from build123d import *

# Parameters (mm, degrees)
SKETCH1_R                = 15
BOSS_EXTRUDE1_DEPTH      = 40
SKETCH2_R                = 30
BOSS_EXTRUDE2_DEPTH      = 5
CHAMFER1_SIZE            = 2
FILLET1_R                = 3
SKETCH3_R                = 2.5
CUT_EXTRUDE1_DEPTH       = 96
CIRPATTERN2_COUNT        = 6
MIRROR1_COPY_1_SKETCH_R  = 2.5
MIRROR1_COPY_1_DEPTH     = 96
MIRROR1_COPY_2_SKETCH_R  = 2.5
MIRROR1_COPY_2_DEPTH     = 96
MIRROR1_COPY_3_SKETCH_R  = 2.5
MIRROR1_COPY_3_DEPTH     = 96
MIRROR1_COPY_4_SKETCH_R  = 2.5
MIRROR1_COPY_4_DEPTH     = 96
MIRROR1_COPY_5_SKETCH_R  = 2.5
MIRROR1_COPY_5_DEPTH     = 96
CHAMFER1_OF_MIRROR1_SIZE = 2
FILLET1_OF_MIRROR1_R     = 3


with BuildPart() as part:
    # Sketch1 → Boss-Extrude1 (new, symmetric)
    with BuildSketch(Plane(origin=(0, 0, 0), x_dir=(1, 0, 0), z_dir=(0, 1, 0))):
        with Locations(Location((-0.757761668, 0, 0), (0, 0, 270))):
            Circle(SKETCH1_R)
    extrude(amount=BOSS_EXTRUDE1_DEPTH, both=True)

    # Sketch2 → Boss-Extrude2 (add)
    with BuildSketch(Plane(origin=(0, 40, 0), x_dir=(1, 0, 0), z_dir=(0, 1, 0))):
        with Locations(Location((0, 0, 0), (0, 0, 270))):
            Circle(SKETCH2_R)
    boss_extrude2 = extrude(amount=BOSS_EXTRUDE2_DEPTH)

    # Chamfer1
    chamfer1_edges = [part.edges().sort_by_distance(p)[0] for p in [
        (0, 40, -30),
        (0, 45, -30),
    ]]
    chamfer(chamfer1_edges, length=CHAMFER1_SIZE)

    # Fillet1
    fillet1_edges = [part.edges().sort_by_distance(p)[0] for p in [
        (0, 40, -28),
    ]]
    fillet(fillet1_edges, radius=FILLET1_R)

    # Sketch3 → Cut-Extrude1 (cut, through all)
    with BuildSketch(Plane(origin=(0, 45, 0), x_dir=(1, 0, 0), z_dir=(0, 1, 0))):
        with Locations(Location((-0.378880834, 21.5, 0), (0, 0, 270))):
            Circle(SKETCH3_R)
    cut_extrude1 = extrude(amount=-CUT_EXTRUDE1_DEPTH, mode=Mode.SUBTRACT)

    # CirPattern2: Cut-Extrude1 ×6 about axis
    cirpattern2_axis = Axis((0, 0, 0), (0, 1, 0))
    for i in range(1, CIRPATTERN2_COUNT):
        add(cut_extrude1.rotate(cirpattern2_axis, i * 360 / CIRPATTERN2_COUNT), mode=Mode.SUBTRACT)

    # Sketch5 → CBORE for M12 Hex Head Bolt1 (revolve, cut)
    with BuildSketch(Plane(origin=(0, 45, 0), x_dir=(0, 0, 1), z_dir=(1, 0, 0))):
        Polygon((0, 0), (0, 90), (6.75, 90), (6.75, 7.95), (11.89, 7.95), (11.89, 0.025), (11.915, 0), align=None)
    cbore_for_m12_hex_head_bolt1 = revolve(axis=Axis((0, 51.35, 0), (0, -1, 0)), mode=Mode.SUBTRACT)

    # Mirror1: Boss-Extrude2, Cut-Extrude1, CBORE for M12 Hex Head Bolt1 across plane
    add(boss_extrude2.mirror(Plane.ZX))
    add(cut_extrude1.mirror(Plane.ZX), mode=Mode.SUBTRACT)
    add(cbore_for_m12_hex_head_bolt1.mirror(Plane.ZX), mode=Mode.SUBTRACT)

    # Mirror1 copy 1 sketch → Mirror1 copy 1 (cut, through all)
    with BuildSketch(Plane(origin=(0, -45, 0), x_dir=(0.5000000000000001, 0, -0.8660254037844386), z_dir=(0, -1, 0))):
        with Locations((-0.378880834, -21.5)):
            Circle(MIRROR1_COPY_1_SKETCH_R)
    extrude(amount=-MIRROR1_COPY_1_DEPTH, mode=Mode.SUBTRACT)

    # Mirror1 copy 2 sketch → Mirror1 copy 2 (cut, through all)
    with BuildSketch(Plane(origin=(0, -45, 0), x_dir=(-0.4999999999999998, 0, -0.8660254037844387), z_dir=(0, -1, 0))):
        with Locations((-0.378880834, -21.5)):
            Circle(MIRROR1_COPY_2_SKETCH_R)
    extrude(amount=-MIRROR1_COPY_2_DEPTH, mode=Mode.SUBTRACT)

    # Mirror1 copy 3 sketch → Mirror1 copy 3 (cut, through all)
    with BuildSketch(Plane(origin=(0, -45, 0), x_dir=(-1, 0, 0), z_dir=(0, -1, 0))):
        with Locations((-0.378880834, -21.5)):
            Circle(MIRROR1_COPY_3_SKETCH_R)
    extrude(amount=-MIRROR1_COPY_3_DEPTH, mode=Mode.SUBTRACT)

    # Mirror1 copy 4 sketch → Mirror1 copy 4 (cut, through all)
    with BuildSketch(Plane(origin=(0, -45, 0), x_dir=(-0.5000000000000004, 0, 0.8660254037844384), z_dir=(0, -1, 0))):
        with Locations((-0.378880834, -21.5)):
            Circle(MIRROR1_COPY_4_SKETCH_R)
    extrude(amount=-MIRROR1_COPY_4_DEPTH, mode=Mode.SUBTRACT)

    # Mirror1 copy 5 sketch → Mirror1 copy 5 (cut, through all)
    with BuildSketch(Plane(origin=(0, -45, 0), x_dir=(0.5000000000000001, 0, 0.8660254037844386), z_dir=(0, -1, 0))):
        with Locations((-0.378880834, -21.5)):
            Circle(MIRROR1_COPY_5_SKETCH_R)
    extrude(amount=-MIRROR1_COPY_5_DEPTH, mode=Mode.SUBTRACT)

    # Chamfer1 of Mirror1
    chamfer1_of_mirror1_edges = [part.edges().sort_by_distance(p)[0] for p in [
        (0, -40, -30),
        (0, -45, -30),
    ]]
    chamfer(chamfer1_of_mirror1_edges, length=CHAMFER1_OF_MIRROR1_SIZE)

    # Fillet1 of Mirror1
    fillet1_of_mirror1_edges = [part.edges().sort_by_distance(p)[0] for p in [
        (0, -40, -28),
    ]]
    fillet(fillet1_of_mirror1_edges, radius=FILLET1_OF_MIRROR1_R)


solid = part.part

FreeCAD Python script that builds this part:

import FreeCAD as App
import Part
import Sketcher

V = App.Vector
Q = App.Units.Quantity


def edges_at(feature, points):
    """Names of the edges that pass closest to the given points."""
    edges = feature.Shape.Edges
    near = lambda p: min(range(len(edges)), key=lambda i: edges[i].distToShape(Part.Vertex(*p))[0])
    return sorted({f"Edge{near(p) + 1}" for p in points})

doc = App.newDocument("Part")
params = doc.addObject("Spreadsheet::Sheet", "Params")
for row, (alias, value) in enumerate([
    ("sketch1_diameter", "30 mm"),
    ("pad1_length", "80 mm"),
    ("sketch2_diameter", "60 mm"),
    ("pad2_length", "5 mm"),
    ("chamfer_size", "2 mm"),
    ("fillet_radius", "3 mm"),
    ("sketch3_diameter", "5 mm"),
    ("sketch4_width", "90 mm"),
    ("sketch4_width2", "82.05 mm"),
    ("sketch4_height", "5.14 mm"),
    ("sketch4_height2", "6.75 mm"),
    ("groove_angle", "360 deg"),
    ("sketch5_diameter", "5 mm"),
    ("sketch6_diameter", "5 mm"),
    ("sketch7_diameter", "5 mm"),
    ("sketch8_diameter", "5 mm"),
    ("sketch9_diameter", "5 mm"),
    ("chamfer2_size", "2 mm"),
    ("fillet2_radius", "3 mm"),
], start=1):
    params.set(f"A{row}", alias)
    params.set(f"B{row}", "=" + value)
    params.setAlias(f"B{row}", alias)

body = doc.addObject("PartDesign::Body", "Body")

sketch1 = doc.addObject("Sketcher::SketchObject", "Sketch")
body.addObject(sketch1)
sketch1.AttachmentSupport = (doc.XZ_Plane, [""])
sketch1.MapMode = "FlatFace"
sketch1.addGeometry(Part.Circle(V(-1, 0, 0), V(0, 0, 1), 15), False)
sketch1.addConstraint(Sketcher.Constraint("PointOnObject", 0, 3, -1))
sketch1.addConstraint(Sketcher.Constraint("Diameter", 0, 30.0))
sketch1.addConstraint(Sketcher.Constraint("DistanceX", 0, 3, -1, 1, 0.757762))
sketch1.setExpression("Constraints[1]", "Params.sketch1_diameter")
pad1 = doc.addObject("PartDesign::Pad", "Pad")
body.addObject(pad1)
pad1.Profile = sketch1
pad1.setExpression("Length", "Params.pad1_length")
pad1.Midplane = True

sketch2 = doc.addObject("Sketcher::SketchObject", "Sketch001")
body.addObject(sketch2)
sketch2.AttachmentSupport = (doc.XZ_Plane, [""])
sketch2.MapMode = "FlatFace"
sketch2.AttachmentOffset = App.Placement(V(0, 0, -40), App.Rotation())
sketch2.addGeometry(Part.Circle(V(0, 0, 0), V(0, 0, 1), 30), False)
sketch2.addConstraint(Sketcher.Constraint("Coincident", 0, 3, -1, 1))
sketch2.addConstraint(Sketcher.Constraint("Diameter", 0, 60.0))
sketch2.setExpression("Constraints[1]", "Params.sketch2_diameter")
pad2 = doc.addObject("PartDesign::Pad", "Pad001")
body.addObject(pad2)
pad2.Profile = sketch2
pad2.setExpression("Length", "Params.pad2_length")
pad2.Reversed = True
doc.recompute()

chamfer = doc.addObject("PartDesign::Chamfer", "Chamfer")
body.addObject(chamfer)
chamfer.Base = (pad2, edges_at(pad2, [(0, 40, -30), (0, 45, -30)]))
chamfer.setExpression("Size", "Params.chamfer_size")
doc.recompute()

fillet = doc.addObject("PartDesign::Fillet", "Fillet")
body.addObject(fillet)
fillet.Base = (chamfer, edges_at(chamfer, [(0, 40, -28)]))
fillet.setExpression("Radius", "Params.fillet_radius")

sketch3 = doc.addObject("Sketcher::SketchObject", "Sketch002")
body.addObject(sketch3)
sketch3.AttachmentSupport = (doc.XZ_Plane, [""])
sketch3.MapMode = "FlatFace"
sketch3.AttachmentOffset = App.Placement(V(0, 0, -45), App.Rotation())
sketch3.addGeometry(Part.Circle(V(-0.4, -21.5, 0), V(0, 0, 1), 2.5), False)
sketch3.addConstraint(Sketcher.Constraint("Diameter", 0, 5.0))
sketch3.addConstraint(Sketcher.Constraint("DistanceY", 0, 3, -1, 1, 21.5))
sketch3.addConstraint(Sketcher.Constraint("DistanceX", 0, 3, -1, 1, 0.378881))
sketch3.setExpression("Constraints[0]", "Params.sketch3_diameter")
pocket1 = doc.addObject("PartDesign::Pocket", "Pocket")
body.addObject(pocket1)
pocket1.Profile = sketch3
pocket1.Type = "ThroughAll"
pocket1.Reversed = True
doc.recompute()

polarpattern = doc.addObject("PartDesign::PolarPattern", "PolarPattern")
body.addObject(polarpattern)
polarpattern.Originals = [pocket1]
polarpattern.Axis = (doc.Y_Axis, [""])
polarpattern.Angle = 360
polarpattern.Occurrences = 6
body.Tip = polarpattern

sketch4 = doc.addObject("Sketcher::SketchObject", "Sketch003")
body.addObject(sketch4)
sketch4.AttachmentSupport = (doc.YZ_Plane, [""])
sketch4.MapMode = "FlatFace"
sketch4.addGeometry(Part.LineSegment(V(-45, 0, 0), V(45, 0, 0)), False)
sketch4.addGeometry(Part.LineSegment(V(45, 0, 0), V(45, 11.915, 0)), False)
sketch4.addGeometry(Part.LineSegment(V(45, 11.915, 0), V(44.975, 11.89, 0)), False)
sketch4.addGeometry(Part.LineSegment(V(44.975, 11.89, 0), V(37.05, 11.89, 0)), False)
sketch4.addGeometry(Part.LineSegment(V(37.05, 11.89, 0), V(37.05, 6.75, 0)), False)
sketch4.addGeometry(Part.LineSegment(V(37.05, 6.75, 0), V(-45, 6.75, 0)), False)
sketch4.addGeometry(Part.LineSegment(V(-45, 6.75, 0), V(-45, 0, 0)), False)
sketch4.addConstraint(Sketcher.Constraint("Coincident", 0, 2, 1, 1))
sketch4.addConstraint(Sketcher.Constraint("Coincident", 1, 2, 2, 1))
sketch4.addConstraint(Sketcher.Constraint("Coincident", 2, 2, 3, 1))
sketch4.addConstraint(Sketcher.Constraint("Coincident", 3, 2, 4, 1))
sketch4.addConstraint(Sketcher.Constraint("Coincident", 4, 2, 5, 1))
sketch4.addConstraint(Sketcher.Constraint("Coincident", 5, 2, 6, 1))
sketch4.addConstraint(Sketcher.Constraint("Coincident", 6, 2, 0, 1))
sketch4.addConstraint(Sketcher.Constraint("Horizontal", 0))
sketch4.addConstraint(Sketcher.Constraint("Vertical", 1))
sketch4.addConstraint(Sketcher.Constraint("Horizontal", 3))
sketch4.addConstraint(Sketcher.Constraint("Vertical", 4))
sketch4.addConstraint(Sketcher.Constraint("Horizontal", 5))
sketch4.addConstraint(Sketcher.Constraint("Vertical", 6))
sketch4.addConstraint(Sketcher.Constraint("Symmetric", 0, 2, 6, 2, -1, 1))
sketch4.addConstraint(Sketcher.Constraint("DistanceX", 0, 1, 0, 2, 90.0))
sketch4.addConstraint(Sketcher.Constraint("Angle", 2, Q("-135 deg")))
sketch4.addConstraint(Sketcher.Constraint("DistanceX", 5, 2, 5, 1, 82.05))
sketch4.addConstraint(Sketcher.Constraint("DistanceY", 4, 2, 4, 1, 5.14))
sketch4.addConstraint(Sketcher.Constraint("DistanceY", 6, 2, 6, 1, 6.75))
sketch4.addConstraint(Sketcher.Constraint("DistanceX", 3, 2, 3, 1, 7.925))
sketch4.setExpression("Constraints[14]", "Params.sketch4_width")
sketch4.setExpression("Constraints[16]", "Params.sketch4_width2")
sketch4.setExpression("Constraints[17]", "Params.sketch4_height")
sketch4.setExpression("Constraints[18]", "Params.sketch4_height2")
groove = doc.addObject("PartDesign::Groove", "Groove")
body.addObject(groove)
groove.Profile = sketch4
groove.ReferenceAxis = (sketch4, ["H_Axis"])
groove.setExpression("Angle", "Params.groove_angle")
doc.recompute()

mirrored = doc.addObject("PartDesign::Mirrored", "Mirrored")
body.addObject(mirrored)
mirrored.Originals = [pad2, pocket1, groove]
mirrored.MirrorPlane = (doc.XZ_Plane, [""])
body.Tip = mirrored

sketch5 = doc.addObject("Sketcher::SketchObject", "Sketch004")
body.addObject(sketch5)
sketch5.AttachmentSupport = (doc.XZ_Plane, [""])
sketch5.MapMode = "FlatFace"
sketch5.AttachmentOffset = App.Placement(V(0, 0, 45), App.Rotation())
sketch5.addGeometry(Part.Circle(V(-18.8, -10.4, 0), V(0, 0, 1), 2.5), False)
sketch5.addConstraint(Sketcher.Constraint("Diameter", 0, 5.0))
sketch5.addConstraint(Sketcher.Constraint("DistanceY", 0, 3, -1, 1, 10.42188))
sketch5.addConstraint(Sketcher.Constraint("DistanceX", 0, 3, -1, 1, 18.808987))
sketch5.setExpression("Constraints[0]", "Params.sketch5_diameter")
pocket2 = doc.addObject("PartDesign::Pocket", "Pocket001")
body.addObject(pocket2)
pocket2.Profile = sketch5
pocket2.Type = "ThroughAll"

sketch6 = doc.addObject("Sketcher::SketchObject", "Sketch005")
body.addObject(sketch6)
sketch6.AttachmentSupport = (doc.XZ_Plane, [""])
sketch6.MapMode = "FlatFace"
sketch6.AttachmentOffset = App.Placement(V(0, 0, 45), App.Rotation())
sketch6.addGeometry(Part.Circle(V(-18.4, 11.1, 0), V(0, 0, 1), 2.5), False)
sketch6.addConstraint(Sketcher.Constraint("Diameter", 0, 5.0))
sketch6.addConstraint(Sketcher.Constraint("DistanceY", -1, 1, 0, 3, 11.07812))
sketch6.addConstraint(Sketcher.Constraint("DistanceX", 0, 3, -1, 1, 18.430106))
sketch6.setExpression("Constraints[0]", "Params.sketch6_diameter")
pocket3 = doc.addObject("PartDesign::Pocket", "Pocket002")
body.addObject(pocket3)
pocket3.Profile = sketch6
pocket3.Type = "ThroughAll"

sketch7 = doc.addObject("Sketcher::SketchObject", "Sketch006")
body.addObject(sketch7)
sketch7.AttachmentSupport = (doc.XZ_Plane, [""])
sketch7.MapMode = "FlatFace"
sketch7.AttachmentOffset = App.Placement(V(0, 0, 45), App.Rotation())
sketch7.addGeometry(Part.Circle(V(0.4, 21.5, 0), V(0, 0, 1), 2.5), False)
sketch7.addConstraint(Sketcher.Constraint("Diameter", 0, 5.0))
sketch7.addConstraint(Sketcher.Constraint("DistanceY", -1, 1, 0, 3, 21.5))
sketch7.addConstraint(Sketcher.Constraint("DistanceX", -1, 1, 0, 3, 0.378881))
sketch7.setExpression("Constraints[0]", "Params.sketch7_diameter")
pocket4 = doc.addObject("PartDesign::Pocket", "Pocket003")
body.addObject(pocket4)
pocket4.Profile = sketch7
pocket4.Type = "ThroughAll"

sketch8 = doc.addObject("Sketcher::SketchObject", "Sketch007")
body.addObject(sketch8)
sketch8.AttachmentSupport = (doc.XZ_Plane, [""])
sketch8.MapMode = "FlatFace"
sketch8.AttachmentOffset = App.Placement(V(0, 0, 45), App.Rotation())
sketch8.addGeometry(Part.Circle(V(18.8, 10.4, 0), V(0, 0, 1), 2.5), False)
sketch8.addConstraint(Sketcher.Constraint("Diameter", 0, 5.0))
sketch8.addConstraint(Sketcher.Constraint("DistanceY", -1, 1, 0, 3, 10.42188))
sketch8.addConstraint(Sketcher.Constraint("DistanceX", -1, 1, 0, 3, 18.808987))
sketch8.setExpression("Constraints[0]", "Params.sketch8_diameter")
pocket5 = doc.addObject("PartDesign::Pocket", "Pocket004")
body.addObject(pocket5)
pocket5.Profile = sketch8
pocket5.Type = "ThroughAll"

sketch9 = doc.addObject("Sketcher::SketchObject", "Sketch008")
body.addObject(sketch9)
sketch9.AttachmentSupport = (doc.XZ_Plane, [""])
sketch9.MapMode = "FlatFace"
sketch9.AttachmentOffset = App.Placement(V(0, 0, 45), App.Rotation())
sketch9.addGeometry(Part.Circle(V(18.4, -11.1, 0), V(0, 0, 1), 2.5), False)
sketch9.addConstraint(Sketcher.Constraint("Diameter", 0, 5.0))
sketch9.addConstraint(Sketcher.Constraint("DistanceY", 0, 3, -1, 1, 11.07812))
sketch9.addConstraint(Sketcher.Constraint("DistanceX", -1, 1, 0, 3, 18.430106))
sketch9.setExpression("Constraints[0]", "Params.sketch9_diameter")
pocket6 = doc.addObject("PartDesign::Pocket", "Pocket005")
body.addObject(pocket6)
pocket6.Profile = sketch9
pocket6.Type = "ThroughAll"
doc.recompute()

chamfer2 = doc.addObject("PartDesign::Chamfer", "Chamfer001")
body.addObject(chamfer2)
chamfer2.Base = (pocket6, edges_at(pocket6, [(0, -40, -30), (0, -45, -30)]))
chamfer2.setExpression("Size", "Params.chamfer2_size")
doc.recompute()

fillet2 = doc.addObject("PartDesign::Fillet", "Fillet001")
body.addObject(fillet2)
fillet2.Base = (chamfer2, edges_at(chamfer2, [(0, -40, -28)]))
fillet2.setExpression("Radius", "Params.fillet2_radius")

doc.recompute()
